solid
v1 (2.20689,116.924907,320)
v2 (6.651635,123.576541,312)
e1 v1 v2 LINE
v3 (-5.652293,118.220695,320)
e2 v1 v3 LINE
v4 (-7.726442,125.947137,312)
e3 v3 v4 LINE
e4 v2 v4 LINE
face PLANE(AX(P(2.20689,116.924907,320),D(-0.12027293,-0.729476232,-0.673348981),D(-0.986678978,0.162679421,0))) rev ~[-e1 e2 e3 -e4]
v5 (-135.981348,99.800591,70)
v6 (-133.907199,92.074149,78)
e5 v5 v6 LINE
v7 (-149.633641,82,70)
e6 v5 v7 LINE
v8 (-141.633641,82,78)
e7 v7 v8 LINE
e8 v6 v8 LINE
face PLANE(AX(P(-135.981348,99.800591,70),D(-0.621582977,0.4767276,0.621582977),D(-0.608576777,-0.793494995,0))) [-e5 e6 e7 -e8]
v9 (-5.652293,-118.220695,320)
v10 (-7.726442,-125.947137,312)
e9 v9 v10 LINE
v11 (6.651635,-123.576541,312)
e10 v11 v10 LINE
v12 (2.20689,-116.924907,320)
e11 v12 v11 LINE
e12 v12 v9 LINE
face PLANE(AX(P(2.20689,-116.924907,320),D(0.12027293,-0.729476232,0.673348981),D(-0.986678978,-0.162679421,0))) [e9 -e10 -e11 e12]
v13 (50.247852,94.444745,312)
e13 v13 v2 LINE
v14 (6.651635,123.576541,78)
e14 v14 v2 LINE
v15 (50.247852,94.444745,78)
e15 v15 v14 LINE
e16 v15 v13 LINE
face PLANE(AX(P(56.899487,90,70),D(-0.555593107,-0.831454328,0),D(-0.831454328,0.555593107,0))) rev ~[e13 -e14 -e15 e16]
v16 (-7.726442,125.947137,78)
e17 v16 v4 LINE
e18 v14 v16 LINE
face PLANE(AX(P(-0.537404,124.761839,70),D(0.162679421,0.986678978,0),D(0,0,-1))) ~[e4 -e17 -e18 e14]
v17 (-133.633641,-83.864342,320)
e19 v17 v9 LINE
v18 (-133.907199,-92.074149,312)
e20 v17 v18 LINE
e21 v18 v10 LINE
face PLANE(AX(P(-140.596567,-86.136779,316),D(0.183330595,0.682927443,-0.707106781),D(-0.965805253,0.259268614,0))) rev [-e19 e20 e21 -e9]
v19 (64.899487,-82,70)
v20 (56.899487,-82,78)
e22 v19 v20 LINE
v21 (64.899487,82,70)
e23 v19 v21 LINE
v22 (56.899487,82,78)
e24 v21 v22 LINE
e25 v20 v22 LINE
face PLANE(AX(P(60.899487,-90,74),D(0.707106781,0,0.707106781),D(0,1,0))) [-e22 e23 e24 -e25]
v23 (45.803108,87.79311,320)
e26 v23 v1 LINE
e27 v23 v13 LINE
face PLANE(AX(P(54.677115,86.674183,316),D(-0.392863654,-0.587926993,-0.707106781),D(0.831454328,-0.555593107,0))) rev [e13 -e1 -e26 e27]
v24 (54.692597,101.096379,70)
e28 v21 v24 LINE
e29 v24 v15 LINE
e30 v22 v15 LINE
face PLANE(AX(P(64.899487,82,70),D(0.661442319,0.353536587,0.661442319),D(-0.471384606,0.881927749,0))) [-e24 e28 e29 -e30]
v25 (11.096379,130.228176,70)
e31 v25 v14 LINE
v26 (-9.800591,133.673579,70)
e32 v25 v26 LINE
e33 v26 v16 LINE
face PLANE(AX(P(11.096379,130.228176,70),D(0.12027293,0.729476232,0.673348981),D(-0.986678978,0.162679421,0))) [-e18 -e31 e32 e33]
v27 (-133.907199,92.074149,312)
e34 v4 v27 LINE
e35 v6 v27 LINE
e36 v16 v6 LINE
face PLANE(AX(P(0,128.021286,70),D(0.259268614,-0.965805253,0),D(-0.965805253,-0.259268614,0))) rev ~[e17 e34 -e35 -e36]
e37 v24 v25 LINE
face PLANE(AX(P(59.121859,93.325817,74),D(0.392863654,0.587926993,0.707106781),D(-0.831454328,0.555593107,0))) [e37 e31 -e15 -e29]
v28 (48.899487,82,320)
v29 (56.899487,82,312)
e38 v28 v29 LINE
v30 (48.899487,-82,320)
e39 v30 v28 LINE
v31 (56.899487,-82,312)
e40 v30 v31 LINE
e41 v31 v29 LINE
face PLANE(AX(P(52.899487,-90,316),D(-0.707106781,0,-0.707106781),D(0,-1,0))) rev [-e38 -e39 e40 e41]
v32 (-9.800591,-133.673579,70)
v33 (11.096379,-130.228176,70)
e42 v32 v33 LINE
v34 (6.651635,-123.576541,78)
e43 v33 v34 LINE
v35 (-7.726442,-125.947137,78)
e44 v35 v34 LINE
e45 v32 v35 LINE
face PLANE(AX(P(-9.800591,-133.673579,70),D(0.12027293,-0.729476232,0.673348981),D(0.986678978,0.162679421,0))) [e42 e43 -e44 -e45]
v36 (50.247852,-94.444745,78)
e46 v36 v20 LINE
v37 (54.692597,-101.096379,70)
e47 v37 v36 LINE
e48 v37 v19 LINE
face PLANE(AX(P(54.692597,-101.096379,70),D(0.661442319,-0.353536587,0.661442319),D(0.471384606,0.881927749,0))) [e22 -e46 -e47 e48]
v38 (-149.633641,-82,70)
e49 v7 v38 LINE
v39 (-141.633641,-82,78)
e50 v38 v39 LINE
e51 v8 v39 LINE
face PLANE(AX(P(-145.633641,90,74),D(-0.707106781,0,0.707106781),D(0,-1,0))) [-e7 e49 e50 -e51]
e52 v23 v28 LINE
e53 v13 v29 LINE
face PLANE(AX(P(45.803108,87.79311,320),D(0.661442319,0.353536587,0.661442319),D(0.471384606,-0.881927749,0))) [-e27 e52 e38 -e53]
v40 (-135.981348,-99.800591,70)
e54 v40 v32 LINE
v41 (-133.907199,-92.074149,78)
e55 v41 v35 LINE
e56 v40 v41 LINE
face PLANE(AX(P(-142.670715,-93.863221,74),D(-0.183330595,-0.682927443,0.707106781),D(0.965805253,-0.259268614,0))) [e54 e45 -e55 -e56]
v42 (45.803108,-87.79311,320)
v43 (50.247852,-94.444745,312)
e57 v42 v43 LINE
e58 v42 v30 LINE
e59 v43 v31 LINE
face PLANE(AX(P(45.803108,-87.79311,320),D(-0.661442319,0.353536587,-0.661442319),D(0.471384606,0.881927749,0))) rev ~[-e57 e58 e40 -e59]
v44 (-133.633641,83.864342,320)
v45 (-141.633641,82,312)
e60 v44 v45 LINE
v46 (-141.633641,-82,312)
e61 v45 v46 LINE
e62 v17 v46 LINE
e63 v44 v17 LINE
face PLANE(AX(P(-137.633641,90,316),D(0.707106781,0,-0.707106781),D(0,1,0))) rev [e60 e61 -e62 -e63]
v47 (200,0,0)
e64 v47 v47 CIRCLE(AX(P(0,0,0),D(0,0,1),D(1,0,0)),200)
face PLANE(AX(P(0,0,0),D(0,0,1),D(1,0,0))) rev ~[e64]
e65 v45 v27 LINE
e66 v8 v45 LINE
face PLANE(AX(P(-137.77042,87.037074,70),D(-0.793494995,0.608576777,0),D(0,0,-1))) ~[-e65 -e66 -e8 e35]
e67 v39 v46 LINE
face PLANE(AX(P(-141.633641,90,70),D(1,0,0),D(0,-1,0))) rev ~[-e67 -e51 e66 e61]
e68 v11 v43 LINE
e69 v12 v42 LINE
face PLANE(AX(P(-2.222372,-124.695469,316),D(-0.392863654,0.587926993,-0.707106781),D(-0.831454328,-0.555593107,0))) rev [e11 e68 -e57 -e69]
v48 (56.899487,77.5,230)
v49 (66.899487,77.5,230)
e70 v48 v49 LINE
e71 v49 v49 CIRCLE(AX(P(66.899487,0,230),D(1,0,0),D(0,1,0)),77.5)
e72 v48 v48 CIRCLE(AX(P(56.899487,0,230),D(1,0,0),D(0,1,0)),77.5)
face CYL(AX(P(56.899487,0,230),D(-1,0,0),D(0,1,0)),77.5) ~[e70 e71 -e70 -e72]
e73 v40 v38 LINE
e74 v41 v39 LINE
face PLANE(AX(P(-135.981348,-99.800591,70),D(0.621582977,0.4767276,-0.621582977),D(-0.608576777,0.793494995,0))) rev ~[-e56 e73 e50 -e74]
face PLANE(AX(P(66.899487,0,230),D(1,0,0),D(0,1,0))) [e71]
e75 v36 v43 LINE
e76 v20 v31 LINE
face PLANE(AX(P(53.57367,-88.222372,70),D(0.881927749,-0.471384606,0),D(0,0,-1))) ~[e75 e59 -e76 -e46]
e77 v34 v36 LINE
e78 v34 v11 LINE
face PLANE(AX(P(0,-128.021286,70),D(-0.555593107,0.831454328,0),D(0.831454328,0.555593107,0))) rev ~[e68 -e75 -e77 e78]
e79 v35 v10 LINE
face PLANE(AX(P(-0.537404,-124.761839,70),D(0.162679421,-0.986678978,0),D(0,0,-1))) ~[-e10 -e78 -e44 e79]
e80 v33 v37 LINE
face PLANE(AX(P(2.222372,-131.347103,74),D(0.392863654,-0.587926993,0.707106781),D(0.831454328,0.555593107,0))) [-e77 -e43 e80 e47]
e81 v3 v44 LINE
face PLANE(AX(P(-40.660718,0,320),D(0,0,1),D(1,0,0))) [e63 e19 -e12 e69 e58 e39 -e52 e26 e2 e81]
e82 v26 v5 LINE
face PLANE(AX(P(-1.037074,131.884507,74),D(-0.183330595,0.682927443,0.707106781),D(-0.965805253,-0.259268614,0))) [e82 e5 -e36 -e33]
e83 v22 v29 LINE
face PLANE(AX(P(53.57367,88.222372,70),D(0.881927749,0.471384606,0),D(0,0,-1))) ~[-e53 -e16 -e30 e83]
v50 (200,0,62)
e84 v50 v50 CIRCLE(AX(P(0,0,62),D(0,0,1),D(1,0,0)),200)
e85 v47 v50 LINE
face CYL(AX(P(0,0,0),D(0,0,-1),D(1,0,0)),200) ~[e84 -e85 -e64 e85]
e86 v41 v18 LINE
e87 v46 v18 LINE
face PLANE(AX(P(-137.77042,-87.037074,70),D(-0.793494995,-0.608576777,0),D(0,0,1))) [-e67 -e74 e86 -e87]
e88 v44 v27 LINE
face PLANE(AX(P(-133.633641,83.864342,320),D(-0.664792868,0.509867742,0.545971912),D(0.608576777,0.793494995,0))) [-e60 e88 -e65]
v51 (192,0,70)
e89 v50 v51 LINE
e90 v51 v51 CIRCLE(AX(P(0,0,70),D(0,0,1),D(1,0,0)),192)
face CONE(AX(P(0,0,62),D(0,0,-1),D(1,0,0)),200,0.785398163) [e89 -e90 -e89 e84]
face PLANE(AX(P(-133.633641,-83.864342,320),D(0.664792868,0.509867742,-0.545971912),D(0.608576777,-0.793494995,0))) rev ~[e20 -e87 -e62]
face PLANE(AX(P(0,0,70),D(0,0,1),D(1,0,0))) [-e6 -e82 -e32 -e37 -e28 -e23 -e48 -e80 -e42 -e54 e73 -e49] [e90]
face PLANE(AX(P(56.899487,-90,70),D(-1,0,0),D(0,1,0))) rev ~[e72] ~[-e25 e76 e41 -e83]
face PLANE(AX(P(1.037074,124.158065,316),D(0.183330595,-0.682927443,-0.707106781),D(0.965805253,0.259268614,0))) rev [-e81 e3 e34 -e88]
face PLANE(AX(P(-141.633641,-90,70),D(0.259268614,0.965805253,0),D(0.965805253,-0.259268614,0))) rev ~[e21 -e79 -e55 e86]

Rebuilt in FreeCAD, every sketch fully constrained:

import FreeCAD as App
import Part
import Sketcher
Q = App.Units.Quantity


def edges_at(feature, points):
    """Names of the edges that pass closest to the given points."""
    edges = feature.Shape.Edges
    near = lambda p: min(range(len(edges)), key=lambda i: edges[i].distToShape(Part.Vertex(*p))[0])
    return sorted({f"Edge{near(p) + 1}" for p in points})

doc = App.newDocument("Part")
body = doc.addObject("PartDesign::Body", "Body")

# Sketch on XY plane
sketch1 = body.newObject("Sketcher::SketchObject", "Sketch")
sketch1.AttachmentSupport = (doc.getObject("XY_Plane"), [""])
sketch1.MapMode = "FlatFace"
sketch1.addGeometry(Part.Circle(App.Vector(0, 0, 0), App.Vector(0, 0, 1), 200), False)
sketch1.addConstraint(Sketcher.Constraint("Coincident", 0, 3, -1, 1))
sketch1.addConstraint(Sketcher.Constraint("Diameter", 0, Q("400 mm")))
pad1 = body.newObject("PartDesign::Pad", "Pad")
pad1.Profile = sketch1
pad1.Length = 70

# Sketch on XY plane
sketch2 = body.newObject("Sketcher::SketchObject", "Sketch001")
sketch2.AttachmentSupport = (doc.getObject("XY_Plane"), [""])
sketch2.MapMode = "FlatFace"
sketch2.AttachmentOffset = App.Placement(App.Vector(0, 0, 70), App.Rotation())
sketch2.addGeometry(Part.LineSegment(App.Vector(-141.633641, -90, 0), App.Vector(0, -128.021286, 0)), False)
sketch2.addGeometry(Part.LineSegment(App.Vector(0, -128.021286, 0), App.Vector(56.899487, -90, 0)), False)
sketch2.addGeometry(Part.LineSegment(App.Vector(56.899487, -90, 0), App.Vector(56.899487, 90, 0)), False)
sketch2.addGeometry(Part.LineSegment(App.Vector(56.899487, 90, 0), App.Vector(0, 128.021286, 0)), False)
sketch2.addGeometry(Part.LineSegment(App.Vector(0, 128.021286, 0), App.Vector(-141.633641, 90, 0)), False)
sketch2.addGeometry(Part.LineSegment(App.Vector(-141.633641, 90, 0), App.Vector(-141.633641, -90, 0)), False)
sketch2.addConstraint(Sketcher.Constraint("Coincident", 0, 2, 1, 1))
sketch2.addConstraint(Sketcher.Constraint("Coincident", 1, 2, 2, 1))
sketch2.addConstraint(Sketcher.Constraint("Coincident", 2, 2, 3, 1))
sketch2.addConstraint(Sketcher.Constraint("Coincident", 3, 2, 4, 1))
sketch2.addConstraint(Sketcher.Constraint("Coincident", 4, 2, 5, 1))
sketch2.addConstraint(Sketcher.Constraint("Coincident", 5, 2, 0, 1))
sketch2.addConstraint(Sketcher.Constraint("Vertical", 2))
sketch2.addConstraint(Sketcher.Constraint("Vertical", 5))
sketch2.addConstraint(Sketcher.Constraint("Symmetric", 0, 2, 3, 2, -1, 1))
sketch2.addConstraint(Sketcher.Constraint("PointOnObject", 0, 2, -2))
sketch2.addConstraint(Sketcher.Constraint("Horizontal", 2, 2, 4, 2))
sketch2.addConstraint(Sketcher.Constraint("Horizontal", 1, 2, 5, 2))
sketch2.addConstraint(Sketcher.Constraint("Equal", 1, 3))
sketch2.addConstraint(Sketcher.Constraint("DistanceY", 2, 1, 2, 2, Q("180 mm")))
sketch2.addConstraint(Sketcher.Constraint("Distance", 0, Q("146.648241 mm")))
sketch2.addConstraint(Sketcher.Constraint("Distance", 1, Q("68.433689 mm")))
sketch2.addConstraint(Sketcher.Constraint("DistanceX", 4, 2, -1, 1, Q("141.633641 mm")))
pad2 = body.newObject("PartDesign::Pad", "Pad001")
pad2.Profile = sketch2
pad2.Length = 250

# Sketch on YZ plane
sketch3 = body.newObject("Sketcher::SketchObject", "Sketch002")
sketch3.AttachmentSupport = (doc.getObject("YZ_Plane"), [""])
sketch3.MapMode = "FlatFace"
sketch3.AttachmentOffset = App.Placement(App.Vector(0, 0, 56.899487), App.Rotation())
sketch3.addGeometry(Part.Circle(App.Vector(0, 230, 0), App.Vector(0, 0, 1), 77.5), False)
sketch3.addConstraint(Sketcher.Constraint("PointOnObject", 0, 3, -2))
sketch3.addConstraint(Sketcher.Constraint("Diameter", 0, Q("155 mm")))
sketch3.addConstraint(Sketcher.Constraint("DistanceY", -1, 1, 0, 3, Q("230 mm")))
pad3 = body.newObject("PartDesign::Pad", "Pad002")
pad3.Profile = sketch3
pad3.Length = 10
doc.recompute()

chamfer = body.newObject("PartDesign::Chamfer", "Chamfer")
chamfer.Base = (pad3, edges_at(pad3, [
    (-200, 0, 70),
    (-70.817, -109.011, 70),
    (28.45, -109.011, 70),
    (56.899, 0, 70),
    (28.45, 109.011, 70),
    (-70.817, 109.011, 70),
    (-141.634, 0, 70),
    (0, -128.021, 195),
    (56.899, -90, 195),
    (28.45, -109.011, 320),
    (-141.634, 90, 195),
    (-141.634, -90, 195),
    (-141.634, 0, 320),
    (56.899, 90, 195),
    (0, 128.021, 195),
    (28.45, 109.011, 320),
    (-70.817, -109.011, 320),
    (56.899, 0, 320),
    (-70.817, 109.011, 320),
]))
chamfer.Size = 8

doc.recompute()
